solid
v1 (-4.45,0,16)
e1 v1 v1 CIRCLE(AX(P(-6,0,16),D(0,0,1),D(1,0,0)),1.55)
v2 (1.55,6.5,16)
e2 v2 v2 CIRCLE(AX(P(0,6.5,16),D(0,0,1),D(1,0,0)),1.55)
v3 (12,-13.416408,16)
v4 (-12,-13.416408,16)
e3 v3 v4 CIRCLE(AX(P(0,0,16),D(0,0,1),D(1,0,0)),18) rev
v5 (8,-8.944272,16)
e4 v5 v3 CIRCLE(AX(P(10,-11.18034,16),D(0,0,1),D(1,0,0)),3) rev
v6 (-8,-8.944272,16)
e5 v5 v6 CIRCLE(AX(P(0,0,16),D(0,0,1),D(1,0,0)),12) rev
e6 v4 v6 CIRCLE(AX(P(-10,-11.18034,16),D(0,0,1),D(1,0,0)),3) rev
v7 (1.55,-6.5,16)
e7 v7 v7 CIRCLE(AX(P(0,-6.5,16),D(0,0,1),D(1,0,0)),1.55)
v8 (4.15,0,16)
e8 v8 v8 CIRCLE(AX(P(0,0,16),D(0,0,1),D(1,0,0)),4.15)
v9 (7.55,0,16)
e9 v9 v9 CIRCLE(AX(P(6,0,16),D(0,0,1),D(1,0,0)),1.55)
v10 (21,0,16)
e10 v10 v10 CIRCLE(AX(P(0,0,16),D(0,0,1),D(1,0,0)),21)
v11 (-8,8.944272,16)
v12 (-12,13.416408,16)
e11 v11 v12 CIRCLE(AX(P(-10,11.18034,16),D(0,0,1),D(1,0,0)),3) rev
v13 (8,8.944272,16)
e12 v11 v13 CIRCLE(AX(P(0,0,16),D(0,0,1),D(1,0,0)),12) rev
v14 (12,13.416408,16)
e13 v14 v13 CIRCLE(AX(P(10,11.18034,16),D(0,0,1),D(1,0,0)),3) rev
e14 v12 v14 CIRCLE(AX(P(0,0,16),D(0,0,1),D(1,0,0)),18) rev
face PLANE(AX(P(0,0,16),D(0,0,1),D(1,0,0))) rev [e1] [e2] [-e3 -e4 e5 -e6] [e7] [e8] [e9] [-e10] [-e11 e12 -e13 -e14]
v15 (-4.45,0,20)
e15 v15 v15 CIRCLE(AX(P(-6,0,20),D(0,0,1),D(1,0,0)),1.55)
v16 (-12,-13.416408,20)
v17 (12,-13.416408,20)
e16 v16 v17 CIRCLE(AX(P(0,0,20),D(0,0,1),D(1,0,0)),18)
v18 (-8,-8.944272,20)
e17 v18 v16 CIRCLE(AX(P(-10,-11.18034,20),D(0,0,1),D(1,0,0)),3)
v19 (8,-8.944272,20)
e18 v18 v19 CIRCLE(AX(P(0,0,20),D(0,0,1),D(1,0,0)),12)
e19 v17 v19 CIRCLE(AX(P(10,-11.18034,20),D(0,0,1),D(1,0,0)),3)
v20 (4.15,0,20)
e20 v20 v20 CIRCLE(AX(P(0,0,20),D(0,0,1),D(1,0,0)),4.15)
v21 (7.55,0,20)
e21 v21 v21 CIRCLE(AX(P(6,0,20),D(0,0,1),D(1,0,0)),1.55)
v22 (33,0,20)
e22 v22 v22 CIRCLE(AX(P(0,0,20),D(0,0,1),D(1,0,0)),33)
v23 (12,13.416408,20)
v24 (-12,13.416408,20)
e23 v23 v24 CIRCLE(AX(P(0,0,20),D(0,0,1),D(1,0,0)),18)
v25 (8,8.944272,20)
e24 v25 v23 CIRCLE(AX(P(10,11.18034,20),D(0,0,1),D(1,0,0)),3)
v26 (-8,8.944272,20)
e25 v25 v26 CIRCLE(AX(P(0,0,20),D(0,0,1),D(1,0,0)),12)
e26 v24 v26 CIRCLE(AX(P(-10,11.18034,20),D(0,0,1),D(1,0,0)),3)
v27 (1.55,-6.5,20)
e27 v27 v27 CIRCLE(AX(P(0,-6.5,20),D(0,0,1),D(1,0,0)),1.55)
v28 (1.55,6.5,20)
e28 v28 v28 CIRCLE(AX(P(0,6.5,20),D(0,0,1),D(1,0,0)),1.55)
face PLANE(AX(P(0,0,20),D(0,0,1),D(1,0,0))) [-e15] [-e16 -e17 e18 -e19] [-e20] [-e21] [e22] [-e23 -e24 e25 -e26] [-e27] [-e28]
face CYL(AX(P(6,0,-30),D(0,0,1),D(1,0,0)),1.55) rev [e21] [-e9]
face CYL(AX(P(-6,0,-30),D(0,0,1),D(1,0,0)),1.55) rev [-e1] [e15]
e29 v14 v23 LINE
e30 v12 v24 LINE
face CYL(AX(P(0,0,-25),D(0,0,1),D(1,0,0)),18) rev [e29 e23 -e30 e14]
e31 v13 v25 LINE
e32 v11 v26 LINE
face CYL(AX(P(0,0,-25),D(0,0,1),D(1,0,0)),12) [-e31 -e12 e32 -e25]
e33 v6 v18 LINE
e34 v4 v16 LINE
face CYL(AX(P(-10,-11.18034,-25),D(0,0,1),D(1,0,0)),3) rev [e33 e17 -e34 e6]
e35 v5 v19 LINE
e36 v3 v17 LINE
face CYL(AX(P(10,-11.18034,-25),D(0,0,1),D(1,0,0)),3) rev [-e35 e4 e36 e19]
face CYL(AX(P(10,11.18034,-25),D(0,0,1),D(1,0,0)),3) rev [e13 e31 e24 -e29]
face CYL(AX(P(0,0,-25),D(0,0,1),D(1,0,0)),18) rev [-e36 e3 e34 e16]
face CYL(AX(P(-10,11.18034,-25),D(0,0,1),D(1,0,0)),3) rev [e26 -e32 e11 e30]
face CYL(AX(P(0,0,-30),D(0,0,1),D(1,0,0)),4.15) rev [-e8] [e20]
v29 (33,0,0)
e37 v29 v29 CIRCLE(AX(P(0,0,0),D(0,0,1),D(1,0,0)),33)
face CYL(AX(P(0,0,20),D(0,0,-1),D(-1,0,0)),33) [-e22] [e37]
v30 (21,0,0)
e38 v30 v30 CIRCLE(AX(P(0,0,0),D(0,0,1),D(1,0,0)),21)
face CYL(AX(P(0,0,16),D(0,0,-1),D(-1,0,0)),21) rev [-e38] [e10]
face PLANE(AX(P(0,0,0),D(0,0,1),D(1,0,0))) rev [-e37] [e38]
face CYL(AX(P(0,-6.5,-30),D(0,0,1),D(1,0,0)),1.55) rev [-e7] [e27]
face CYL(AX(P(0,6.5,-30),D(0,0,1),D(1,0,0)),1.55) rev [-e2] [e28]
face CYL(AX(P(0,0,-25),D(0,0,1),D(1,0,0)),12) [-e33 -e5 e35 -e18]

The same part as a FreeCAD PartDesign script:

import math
import FreeCAD as App
import Part
import Sketcher
from FreeCAD import Vector

doc = App.newDocument("Part")
params = doc.addObject("Spreadsheet::Sheet", "Params")
for row, (alias, value) in enumerate([
    ("sketch1_diameter", "66 mm"),
    ("pad1_length", "20 mm"),
    ("sketch2_radius", "3 mm"),
    ("sketch2_radius2", "18 mm"),
    ("pocket1_length", "50 mm"),
    ("sketch3_diameter", "42 mm"),
    ("pocket2_length", "16 mm"),
    ("sketch4_diameter", "3.1 mm"),
    ("sketch4_diameter2", "8.3 mm"),
    ("pocket3_length", "60 mm"),
], start=1):
    params.set(f"A{row}", alias)
    params.set(f"B{row}", "=" + value)
    params.setAlias(f"B{row}", alias)

body = doc.addObject("PartDesign::Body", "Body")

# Sketch on XY plane
sketch1 = doc.addObject("Sketcher::SketchObject", "Sketch")
body.addObject(sketch1)
sketch1.AttachmentSupport = (doc.XY_Plane, [""])
sketch1.MapMode = "FlatFace"
sketch1.addGeometry(Part.Circle(Vector(0, 0, 0), Vector(0, 0, 1), 33), False)
sketch1.addConstraint(Sketcher.Constraint("Coincident", 0, 3, -1, 1))
sketch1.addConstraint(Sketcher.Constraint("Diameter", 0, 66.0))
sketch1.setExpression("Constraints[1]", "Params.sketch1_diameter")
pad1 = doc.addObject("PartDesign::Pad", "Pad")
body.addObject(pad1)
pad1.Profile = sketch1
pad1.setExpression("Length", "Params.pad1_length")

# Sketch on XY plane
sketch2 = doc.addObject("Sketcher::SketchObject", "Sketch001")
body.addObject(sketch2)
sketch2.AttachmentSupport = (doc.XY_Plane, [""])
sketch2.MapMode = "FlatFace"
sketch2.addGeometry(Part.ArcOfCircle(Part.Circle(Vector(-10, -11.2, 0), Vector(0, 0, 1), 3), math.radians(48), math.radians(90)), False)
sketch2.addGeometry(Part.ArcOfCircle(Part.Circle(Vector(-10, -11.2, 0), Vector(0, 0, 1), 3), math.radians(90), math.radians(228)), False)
sketch2.addGeometry(Part.ArcOfCircle(Part.Circle(Vector(0, 0, 0), Vector(0, 0, 1), 18), math.radians(-132), math.radians(-48)), False)
sketch2.addGeometry(Part.ArcOfCircle(Part.Circle(Vector(10, -11.2, 0), Vector(0, 0, 1), 3), math.radians(-48), math.radians(90)), False)
sketch2.addGeometry(Part.ArcOfCircle(Part.Circle(Vector(10, -11.2, 0), Vector(0, 0, 1), 3), math.radians(90), math.radians(132)), False)
sketch2.addGeometry(Part.ArcOfCircle(Part.Circle(Vector(0, 0, 0), Vector(0, 0, 1), 12), math.radians(-132), math.radians(-48)), False)
sketch2.addGeometry(Part.ArcOfCircle(Part.Circle(Vector(-10, 11.2, 0), Vector(0, 0, 1), 3), math.radians(132), math.radians(312)), False)
sketch2.addGeometry(Part.ArcOfCircle(Part.Circle(Vector(0, 0, 0), Vector(0, 0, 1), 12), math.radians(90), math.radians(132)), False)
sketch2.addGeometry(Part.ArcOfCircle(Part.Circle(Vector(0, 0, 0), Vector(0, 0, 1), 12), math.radians(48), math.radians(90)), False)
sketch2.addGeometry(Part.ArcOfCircle(Part.Circle(Vector(10, 11.2, 0), Vector(0, 0, 1), 3), math.radians(-132), math.radians(48)), False)
sketch2.addGeometry(Part.ArcOfCircle(Part.Circle(Vector(0, 0, 0), Vector(0, 0, 1), 18), math.radians(48), math.radians(90)), False)
sketch2.addGeometry(Part.ArcOfCircle(Part.Circle(Vector(0, 0, 0), Vector(0, 0, 1), 18), math.radians(90), math.radians(132)), False)
sketch2.addConstraint(Sketcher.Constraint("Tangent", 0, 2, 1, 1))
sketch2.addConstraint(Sketcher.Constraint("Tangent", 1, 2, 2, 1))
sketch2.addConstraint(Sketcher.Constraint("Tangent", 2, 2, 3, 1))
sketch2.addConstraint(Sketcher.Constraint("Tangent", 3, 2, 4, 1))
sketch2.addConstraint(Sketcher.Constraint("Tangent", 4, 2, 5, 2))
sketch2.addConstraint(Sketcher.Constraint("Tangent", 5, 1, 0, 1))
sketch2.addConstraint(Sketcher.Constraint("Tangent", 6, 2, 7, 2))
sketch2.addConstraint(Sketcher.Constraint("Tangent", 7, 1, 8, 2))
sketch2.addConstraint(Sketcher.Constraint("Tangent", 8, 1, 9, 1))
sketch2.addConstraint(Sketcher.Constraint("Tangent", 9, 2, 10, 1))
sketch2.addConstraint(Sketcher.Constraint("Tangent", 10, 2, 11, 1))
sketch2.addConstraint(Sketcher.Constraint("Tangent", 11, 2, 6, 1))
sketch2.addConstraint(Sketcher.Constraint("Coincident", 2, 3, -1, 1))
sketch2.addConstraint(Sketcher.Constraint("Coincident", 5, 3, -1, 1))
sketch2.addConstraint(Sketcher.Constraint("Coincident", 7, 3, -1, 1))
sketch2.addConstraint(Sketcher.Constraint("Coincident", 10, 3, -1, 1))
sketch2.addConstraint(Sketcher.Constraint("Equal", 0, 1))
sketch2.addConstraint(Sketcher.Constraint("Equal", 1, 3))
sketch2.addConstraint(Sketcher.Constraint("Equal", 4, 6))
sketch2.addConstraint(Sketcher.Constraint("Equal", 5, 7))
sketch2.addConstraint(Sketcher.Constraint("Equal", 7, 8))
sketch2.addConstraint(Sketcher.Constraint("Equal", 6, 9))
sketch2.addConstraint(Sketcher.Constraint("Symmetric", 0, 2, 3, 2, -2))
sketch2.addConstraint(Sketcher.Constraint("PointOnObject", 7, 1, -2))
sketch2.addConstraint(Sketcher.Constraint("PointOnObject", 10, 2, -2))
sketch2.addConstraint(Sketcher.Constraint("Horizontal", 6, 3, 9, 3))
sketch2.addConstraint(Sketcher.Constraint("Vertical", 1, 3, 6, 3))
sketch2.addConstraint(Sketcher.Constraint("Vertical", 6, 3, 0, 2))
sketch2.addConstraint(Sketcher.Constraint("Radius", 0, 3.0))
sketch2.addConstraint(Sketcher.Constraint("Radius", 2, 18.0))
sketch2.addConstraint(Sketcher.Constraint("DistanceX", 0, 3, -1, 1, 10.0))
sketch2.setExpression("Constraints[28]", "Params.sketch2_radius")
sketch2.setExpression("Constraints[29]", "Params.sketch2_radius2")
pocket1 = doc.addObject("PartDesign::Pocket", "Pocket")
body.addObject(pocket1)
pocket1.Profile = sketch2
pocket1.setExpression("Length", "Params.pocket1_length")
pocket1.Midplane = True

# Sketch on XY plane
sketch3 = doc.addObject("Sketcher::SketchObject", "Sketch002")
body.addObject(sketch3)
sketch3.AttachmentSupport = (doc.XY_Plane, [""])
sketch3.MapMode = "FlatFace"
sketch3.addGeometry(Part.Circle(Vector(0, 0, 0), Vector(0, 0, 1), 21), False)
sketch3.addConstraint(Sketcher.Constraint("Coincident", 0, 3, -1, 1))
sketch3.addConstraint(Sketcher.Constraint("Diameter", 0, 42.0))
sketch3.setExpression("Constraints[1]", "Params.sketch3_diameter")
pocket2 = doc.addObject("PartDesign::Pocket", "Pocket001")
body.addObject(pocket2)
pocket2.Profile = sketch3
pocket2.setExpression("Length", "Params.pocket2_length")
pocket2.Reversed = True

# Sketch on XY plane
sketch4 = doc.addObject("Sketcher::SketchObject", "Sketch003")
body.addObject(sketch4)
sketch4.AttachmentSupport = (doc.XY_Plane, [""])
sketch4.MapMode = "FlatFace"
sketch4.addGeometry(Part.Circle(Vector(0, 6.5, 0), Vector(0, 0, 1), 1.6), False)
sketch4.addGeometry(Part.Circle(Vector(0, -6.5, 0), Vector(0, 0, 1), 1.6), False)
sketch4.addGeometry(Part.Circle(Vector(6, 0, 0), Vector(0, 0, 1), 1.6), False)
sketch4.addGeometry(Part.Circle(Vector(-6, 0, 0), Vector(0, 0, 1), 1.6), False)
sketch4.addGeometry(Part.Circle(Vector(0, 0, 0), Vector(0, 0, 1), 4.2), False)
sketch4.addConstraint(Sketcher.Constraint("Coincident", 4, 3, -1, 1))
sketch4.addConstraint(Sketcher.Constraint("Equal", 0, 1))
sketch4.addConstraint(Sketcher.Constraint("Equal", 1, 2))
sketch4.addConstraint(Sketcher.Constraint("Equal", 2, 3))
sketch4.addConstraint(Sketcher.Constraint("Symmetric", 0, 3, 1, 3, -1, 1))
sketch4.addConstraint(Sketcher.Constraint("Symmetric", 2, 3, 3, 3, -1, 1))
sketch4.addConstraint(Sketcher.Constraint("PointOnObject", 0, 3, -2))
sketch4.addConstraint(Sketcher.Constraint("PointOnObject", 2, 3, -1))
sketch4.addConstraint(Sketcher.Constraint("Diameter", 0, 3.1))
sketch4.addConstraint(Sketcher.Constraint("Diameter", 4, 8.3))
sketch4.addConstraint(Sketcher.Constraint("DistanceX", -1, 1, 2, 3, 6.0))
sketch4.addConstraint(Sketcher.Constraint("DistanceY", 1, 3, 0, 3, 13.0))
sketch4.setExpression("Constraints[8]", "Params.sketch4_diameter")
sketch4.setExpression("Constraints[9]", "Params.sketch4_diameter2")
pocket3 = doc.addObject("PartDesign::Pocket", "Pocket002")
body.addObject(pocket3)
pocket3.Profile = sketch4
pocket3.setExpression("Length", "Params.pocket3_length")
pocket3.Midplane = True

doc.recompute()
